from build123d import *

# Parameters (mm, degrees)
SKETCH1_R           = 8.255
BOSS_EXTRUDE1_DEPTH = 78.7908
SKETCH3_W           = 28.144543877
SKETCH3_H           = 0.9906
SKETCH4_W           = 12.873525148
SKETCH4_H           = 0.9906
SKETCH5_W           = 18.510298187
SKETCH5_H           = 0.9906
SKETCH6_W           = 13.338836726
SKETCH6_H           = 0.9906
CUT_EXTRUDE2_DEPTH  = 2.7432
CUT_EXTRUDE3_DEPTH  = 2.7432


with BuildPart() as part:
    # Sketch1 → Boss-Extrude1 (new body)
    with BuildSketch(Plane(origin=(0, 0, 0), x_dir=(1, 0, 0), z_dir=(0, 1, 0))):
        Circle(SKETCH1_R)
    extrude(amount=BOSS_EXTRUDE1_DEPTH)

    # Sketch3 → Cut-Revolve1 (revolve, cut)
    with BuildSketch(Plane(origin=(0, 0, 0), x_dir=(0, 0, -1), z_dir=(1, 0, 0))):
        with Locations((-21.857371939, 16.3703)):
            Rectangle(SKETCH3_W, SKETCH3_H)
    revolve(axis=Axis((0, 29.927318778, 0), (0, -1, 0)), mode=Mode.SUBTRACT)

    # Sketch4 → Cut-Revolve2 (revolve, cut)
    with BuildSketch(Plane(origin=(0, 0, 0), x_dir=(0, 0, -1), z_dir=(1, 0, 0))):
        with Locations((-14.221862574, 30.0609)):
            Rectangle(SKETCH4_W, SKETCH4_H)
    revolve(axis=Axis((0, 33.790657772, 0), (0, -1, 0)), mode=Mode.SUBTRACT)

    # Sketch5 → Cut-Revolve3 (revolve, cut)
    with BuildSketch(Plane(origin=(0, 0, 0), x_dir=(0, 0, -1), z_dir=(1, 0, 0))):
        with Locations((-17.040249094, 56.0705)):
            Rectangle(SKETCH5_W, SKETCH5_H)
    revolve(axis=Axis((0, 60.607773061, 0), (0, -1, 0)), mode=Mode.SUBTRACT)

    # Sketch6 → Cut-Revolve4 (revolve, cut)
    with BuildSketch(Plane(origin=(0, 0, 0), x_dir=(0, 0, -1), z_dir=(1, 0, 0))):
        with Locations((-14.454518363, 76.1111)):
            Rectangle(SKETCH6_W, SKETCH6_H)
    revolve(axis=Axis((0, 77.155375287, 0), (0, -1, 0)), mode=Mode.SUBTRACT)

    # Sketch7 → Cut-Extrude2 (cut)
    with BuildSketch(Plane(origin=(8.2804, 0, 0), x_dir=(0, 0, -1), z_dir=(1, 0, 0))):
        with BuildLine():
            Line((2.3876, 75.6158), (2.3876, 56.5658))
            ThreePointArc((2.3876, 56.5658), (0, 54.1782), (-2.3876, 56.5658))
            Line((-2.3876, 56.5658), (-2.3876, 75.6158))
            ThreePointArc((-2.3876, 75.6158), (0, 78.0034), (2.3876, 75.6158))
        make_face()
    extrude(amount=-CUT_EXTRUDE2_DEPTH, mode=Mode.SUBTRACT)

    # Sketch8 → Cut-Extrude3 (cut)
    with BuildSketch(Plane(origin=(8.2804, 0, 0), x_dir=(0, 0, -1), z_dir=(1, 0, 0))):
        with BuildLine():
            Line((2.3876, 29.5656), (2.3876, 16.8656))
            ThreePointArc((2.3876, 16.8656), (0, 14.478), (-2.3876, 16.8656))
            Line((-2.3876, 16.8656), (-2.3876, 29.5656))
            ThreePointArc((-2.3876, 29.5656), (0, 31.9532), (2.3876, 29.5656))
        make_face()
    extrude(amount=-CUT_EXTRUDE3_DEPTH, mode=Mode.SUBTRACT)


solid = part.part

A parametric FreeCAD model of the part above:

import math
import FreeCAD as App
import Part
import Sketcher
from FreeCAD import Vector
Q = App.Units.Quantity

doc = App.newDocument("Part")
body = doc.addObject("PartDesign::Body", "Body")

# Sketch on XZ plane
sketch1 = body.newObject("Sketcher::SketchObject", "Sketch")
sketch1.AttachmentSupport = (doc.getObject("XZ_Plane"), [""])
sketch1.MapMode = "FlatFace"
sketch1.addGeometry(Part.Circle(Vector(0, 0, 0), Vector(0, 0, 1), 8.255), False)
sketch1.addConstraint([
    Sketcher.Constraint("Coincident", 0, 3, -1, 1),
    Sketcher.Constraint("Diameter", 0, Q("0.65 in")),
])
pad1 = body.newObject("PartDesign::Pad", "Pad")
pad1.Profile = sketch1
pad1.Length = Q("3.102 in")
pad1.Reversed = True

# Sketch on YZ plane
sketch2 = body.newObject("Sketcher::SketchObject", "Sketch001")
sketch2.AttachmentSupport = (doc.getObject("YZ_Plane"), [""])
sketch2.MapMode = "FlatFace"
sketch2.addGeometry([
    Part.LineSegment(Vector(16.8656, 35.929644, 0), Vector(15.875, 35.929644, 0)),
    Part.LineSegment(Vector(15.875, 35.929644, 0), Vector(15.875, 7.7851, 0)),
    Part.LineSegment(Vector(15.875, 7.7851, 0), Vector(16.8656, 7.7851, 0)),
    Part.LineSegment(Vector(16.8656, 7.7851, 0), Vector(16.8656, 35.929644, 0)),
], False)
sketch2.addConstraint([
    Sketcher.Constraint("Coincident", 0, 2, 1, 1),
    Sketcher.Constraint("Coincident", 1, 2, 2, 1),
    Sketcher.Constraint("Coincident", 2, 2, 3, 1),
    Sketcher.Constraint("Coincident", 3, 2, 0, 1),
    Sketcher.Constraint("Horizontal", 0),
    Sketcher.Constraint("Vertical", 1),
    Sketcher.Constraint("Horizontal", 2),
    Sketcher.Constraint("Vertical", 3),
    Sketcher.Constraint("DistanceX", 0, 2, 0, 1, Q("0.039 in")),
    Sketcher.Constraint("DistanceX", -1, 1, 0, 2, Q("0.625 in")),
    Sketcher.Constraint("DistanceY", -1, 1, 1, 2, Q("0.3065 in")),
    Sketcher.Constraint("DistanceY", 1, 2, 1, 1, Q("28.144544 mm")),
])
groove = body.newObject("PartDesign::Groove", "Groove")
groove.Profile = sketch2
groove.ReferenceAxis = (sketch2, ["H_Axis"])
groove.Angle = 360

# Sketch on YZ plane
sketch3 = body.newObject("Sketcher::SketchObject", "Sketch002")
sketch3.AttachmentSupport = (doc.getObject("YZ_Plane"), [""])
sketch3.MapMode = "FlatFace"
sketch3.addGeometry([
    Part.LineSegment(Vector(30.5562, 20.658625, 0), Vector(29.5656, 20.658625, 0)),
    Part.LineSegment(Vector(29.5656, 20.658625, 0), Vector(29.5656, 7.7851, 0)),
    Part.LineSegment(Vector(29.5656, 7.7851, 0), Vector(30.5562, 7.7851, 0)),
    Part.LineSegment(Vector(30.5562, 7.7851, 0), Vector(30.5562, 20.658625, 0)),
], False)
sketch3.addConstraint([
    Sketcher.Constraint("Coincident", 0, 2, 1, 1),
    Sketcher.Constraint("Coincident", 1, 2, 2, 1),
    Sketcher.Constraint("Coincident", 2, 2, 3, 1),
    Sketcher.Constraint("Coincident", 3, 2, 0, 1),
    Sketcher.Constraint("Horizontal", 0),
    Sketcher.Constraint("Vertical", 1),
    Sketcher.Constraint("Horizontal", 2),
    Sketcher.Constraint("Vertical", 3),
    Sketcher.Constraint("DistanceX", 0, 2, 0, 1, Q("0.039 in")),
    Sketcher.Constraint("DistanceX", -1, 1, 0, 2, Q("1.164 in")),
    Sketcher.Constraint("DistanceY", -1, 1, 1, 2, Q("0.3065 in")),
    Sketcher.Constraint("DistanceY", 1, 2, 1, 1, Q("12.873525 mm")),
])
groove2 = body.newObject("PartDesign::Groove", "Groove001")
groove2.Profile = sketch3
groove2.ReferenceAxis = (sketch3, ["H_Axis"])
groove2.Angle = 360

# Sketch on YZ plane
sketch4 = body.newObject("Sketcher::SketchObject", "Sketch003")
sketch4.AttachmentSupport = (doc.getObject("YZ_Plane"), [""])
sketch4.MapMode = "FlatFace"
sketch4.addGeometry([
    Part.LineSegment(Vector(56.5658, 26.295398, 0), Vector(55.5752, 26.295398, 0)),
    Part.LineSegment(Vector(55.5752, 26.295398, 0), Vector(55.5752, 7.7851, 0)),
    Part.LineSegment(Vector(55.5752, 7.7851, 0), Vector(56.5658, 7.7851, 0)),
    Part.LineSegment(Vector(56.5658, 7.7851, 0), Vector(56.5658, 26.295398, 0)),
], False)
sketch4.addConstraint([
    Sketcher.Constraint("Coincident", 0, 2, 1, 1),
    Sketcher.Constraint("Coincident", 1, 2, 2, 1),
    Sketcher.Constraint("Coincident", 2, 2, 3, 1),
    Sketcher.Constraint("Coincident", 3, 2, 0, 1),
    Sketcher.Constraint("Horizontal", 0),
    Sketcher.Constraint("Vertical", 1),
    Sketcher.Constraint("Horizontal", 2),
    Sketcher.Constraint("Vertical", 3),
    Sketcher.Constraint("DistanceX", 0, 2, 0, 1, Q("0.039 in")),
    Sketcher.Constraint("DistanceX", -1, 1, 0, 2, Q("2.188 in")),
    Sketcher.Constraint("DistanceY", 1, 2, 1, 1, Q("18.510298 mm")),
    Sketcher.Constraint("DistanceY", -1, 1, 1, 2, Q("0.3065 in")),
])
groove3 = body.newObject("PartDesign::Groove", "Groove002")
groove3.Profile = sketch4
groove3.ReferenceAxis = (sketch4, ["H_Axis"])
groove3.Angle = 360

# Sketch on YZ plane
sketch5 = body.newObject("Sketcher::SketchObject", "Sketch004")
sketch5.AttachmentSupport = (doc.getObject("YZ_Plane"), [""])
sketch5.MapMode = "FlatFace"
sketch5.addGeometry([
    Part.LineSegment(Vector(76.6064, 21.123937, 0), Vector(75.6158, 21.123937, 0)),
    Part.LineSegment(Vector(75.6158, 21.123937, 0), Vector(75.6158, 7.7851, 0)),
    Part.LineSegment(Vector(75.6158, 7.7851, 0), Vector(76.6064, 7.7851, 0)),
    Part.LineSegment(Vector(76.6064, 7.7851, 0), Vector(76.6064, 21.123937, 0)),
], False)
sketch5.addConstraint([
    Sketcher.Constraint("Coincident", 0, 2, 1, 1),
    Sketcher.Constraint("Coincident", 1, 2, 2, 1),
    Sketcher.Constraint("Coincident", 2, 2, 3, 1),
    Sketcher.Constraint("Coincident", 3, 2, 0, 1),
    Sketcher.Constraint("Horizontal", 0),
    Sketcher.Constraint("Vertical", 1),
    Sketcher.Constraint("Horizontal", 2),
    Sketcher.Constraint("Vertical", 3),
    Sketcher.Constraint("DistanceX", 0, 2, 0, 1, Q("0.039 in")),
    Sketcher.Constraint("DistanceX", -1, 1, 0, 2, Q("2.977 in")),
    Sketcher.Constraint("DistanceY", -1, 1, 1, 2, Q("0.3065 in")),
    Sketcher.Constraint("DistanceY", 1, 2, 1, 1, Q("13.338837 mm")),
])
groove4 = body.newObject("PartDesign::Groove", "Groove003")
groove4.Profile = sketch5
groove4.ReferenceAxis = (sketch5, ["H_Axis"])
groove4.Angle = 360

# Sketch on YZ plane
sketch6 = body.newObject("Sketcher::SketchObject", "Sketch005")
sketch6.AttachmentSupport = (doc.getObject("YZ_Plane"), [""])
sketch6.MapMode = "FlatFace"
sketch6.AttachmentOffset = App.Placement(Vector(0, 0, 0.326 * 25.4), App.Rotation())
sketch6.addGeometry([
    Part.LineSegment(Vector(56.5658, -2.3876, 0), Vector(75.6158, -2.3876, 0)),
    Part.ArcOfCircle(Part.Circle(Vector(75.6158, 0, 0), Vector(0, 0, 1), 2.3876), math.radians(-90), math.radians(90)),
    Part.LineSegment(Vector(75.6158, 2.3876, 0), Vector(56.5658, 2.3876, 0)),
    Part.ArcOfCircle(Part.Circle(Vector(56.5658, 0, 0), Vector(0, 0, 1), 2.3876), math.radians(90), math.radians(270)),
], False)
sketch6.addConstraint([
    Sketcher.Constraint("Tangent", 0, 2, 1, 1),
    Sketcher.Constraint("Tangent", 1, 2, 2, 1),
    Sketcher.Constraint("Tangent", 2, 2, 3, 1),
    Sketcher.Constraint("Tangent", 3, 2, 0, 1),
    Sketcher.Constraint("Horizontal", 0),
    Sketcher.Constraint("Horizontal", 2),
    Sketcher.Constraint("PointOnObject", 1, 3, -1),
    Sketcher.Constraint("Radius", 1, Q("0.094 in")),
    Sketcher.Constraint("DistanceX", 0, 1, 0, 2, Q("0.75 in")),
    Sketcher.Constraint("DistanceX", -1, 1, 1, 3, Q("2.977 in")),
])
pocket1 = body.newObject("PartDesign::Pocket", "Pocket")
pocket1.Profile = sketch6
pocket1.Length = Q("0.108 in")

# Sketch on YZ plane
sketch7 = body.newObject("Sketcher::SketchObject", "Sketch006")
sketch7.AttachmentSupport = (doc.getObject("YZ_Plane"), [""])
sketch7.MapMode = "FlatFace"
sketch7.AttachmentOffset = App.Placement(Vector(0, 0, 0.326 * 25.4), App.Rotation())
sketch7.addGeometry([
    Part.LineSegment(Vector(16.8656, -2.3876, 0), Vector(29.5656, -2.3876, 0)),
    Part.ArcOfCircle(Part.Circle(Vector(29.5656, 0, 0), Vector(0, 0, 1), 2.3876), math.radians(-90), math.radians(90)),
    Part.LineSegment(Vector(29.5656, 2.3876, 0), Vector(16.8656, 2.3876, 0)),
    Part.ArcOfCircle(Part.Circle(Vector(16.8656, 0, 0), Vector(0, 0, 1), 2.3876), math.radians(90), math.radians(270)),
], False)
sketch7.addConstraint([
    Sketcher.Constraint("Tangent", 0, 2, 1, 1),
    Sketcher.Constraint("Tangent", 1, 2, 2, 1),
    Sketcher.Constraint("Tangent", 2, 2, 3, 1),
    Sketcher.Constraint("Tangent", 3, 2, 0, 1),
    Sketcher.Constraint("Horizontal", 0),
    Sketcher.Constraint("Horizontal", 2),
    Sketcher.Constraint("PointOnObject", 1, 3, -1),
    Sketcher.Constraint("DistanceX", 0, 1, 0, 2, Q("0.5 in")),
    Sketcher.Constraint("Radius", 1, Q("0.094 in")),
    Sketcher.Constraint("DistanceX", -1, 1, 1, 3, Q("1.164 in")),
])
pocket2 = body.newObject("PartDesign::Pocket", "Pocket001")
pocket2.Profile = sketch7
pocket2.Length = Q("0.108 in")

doc.recompute()
